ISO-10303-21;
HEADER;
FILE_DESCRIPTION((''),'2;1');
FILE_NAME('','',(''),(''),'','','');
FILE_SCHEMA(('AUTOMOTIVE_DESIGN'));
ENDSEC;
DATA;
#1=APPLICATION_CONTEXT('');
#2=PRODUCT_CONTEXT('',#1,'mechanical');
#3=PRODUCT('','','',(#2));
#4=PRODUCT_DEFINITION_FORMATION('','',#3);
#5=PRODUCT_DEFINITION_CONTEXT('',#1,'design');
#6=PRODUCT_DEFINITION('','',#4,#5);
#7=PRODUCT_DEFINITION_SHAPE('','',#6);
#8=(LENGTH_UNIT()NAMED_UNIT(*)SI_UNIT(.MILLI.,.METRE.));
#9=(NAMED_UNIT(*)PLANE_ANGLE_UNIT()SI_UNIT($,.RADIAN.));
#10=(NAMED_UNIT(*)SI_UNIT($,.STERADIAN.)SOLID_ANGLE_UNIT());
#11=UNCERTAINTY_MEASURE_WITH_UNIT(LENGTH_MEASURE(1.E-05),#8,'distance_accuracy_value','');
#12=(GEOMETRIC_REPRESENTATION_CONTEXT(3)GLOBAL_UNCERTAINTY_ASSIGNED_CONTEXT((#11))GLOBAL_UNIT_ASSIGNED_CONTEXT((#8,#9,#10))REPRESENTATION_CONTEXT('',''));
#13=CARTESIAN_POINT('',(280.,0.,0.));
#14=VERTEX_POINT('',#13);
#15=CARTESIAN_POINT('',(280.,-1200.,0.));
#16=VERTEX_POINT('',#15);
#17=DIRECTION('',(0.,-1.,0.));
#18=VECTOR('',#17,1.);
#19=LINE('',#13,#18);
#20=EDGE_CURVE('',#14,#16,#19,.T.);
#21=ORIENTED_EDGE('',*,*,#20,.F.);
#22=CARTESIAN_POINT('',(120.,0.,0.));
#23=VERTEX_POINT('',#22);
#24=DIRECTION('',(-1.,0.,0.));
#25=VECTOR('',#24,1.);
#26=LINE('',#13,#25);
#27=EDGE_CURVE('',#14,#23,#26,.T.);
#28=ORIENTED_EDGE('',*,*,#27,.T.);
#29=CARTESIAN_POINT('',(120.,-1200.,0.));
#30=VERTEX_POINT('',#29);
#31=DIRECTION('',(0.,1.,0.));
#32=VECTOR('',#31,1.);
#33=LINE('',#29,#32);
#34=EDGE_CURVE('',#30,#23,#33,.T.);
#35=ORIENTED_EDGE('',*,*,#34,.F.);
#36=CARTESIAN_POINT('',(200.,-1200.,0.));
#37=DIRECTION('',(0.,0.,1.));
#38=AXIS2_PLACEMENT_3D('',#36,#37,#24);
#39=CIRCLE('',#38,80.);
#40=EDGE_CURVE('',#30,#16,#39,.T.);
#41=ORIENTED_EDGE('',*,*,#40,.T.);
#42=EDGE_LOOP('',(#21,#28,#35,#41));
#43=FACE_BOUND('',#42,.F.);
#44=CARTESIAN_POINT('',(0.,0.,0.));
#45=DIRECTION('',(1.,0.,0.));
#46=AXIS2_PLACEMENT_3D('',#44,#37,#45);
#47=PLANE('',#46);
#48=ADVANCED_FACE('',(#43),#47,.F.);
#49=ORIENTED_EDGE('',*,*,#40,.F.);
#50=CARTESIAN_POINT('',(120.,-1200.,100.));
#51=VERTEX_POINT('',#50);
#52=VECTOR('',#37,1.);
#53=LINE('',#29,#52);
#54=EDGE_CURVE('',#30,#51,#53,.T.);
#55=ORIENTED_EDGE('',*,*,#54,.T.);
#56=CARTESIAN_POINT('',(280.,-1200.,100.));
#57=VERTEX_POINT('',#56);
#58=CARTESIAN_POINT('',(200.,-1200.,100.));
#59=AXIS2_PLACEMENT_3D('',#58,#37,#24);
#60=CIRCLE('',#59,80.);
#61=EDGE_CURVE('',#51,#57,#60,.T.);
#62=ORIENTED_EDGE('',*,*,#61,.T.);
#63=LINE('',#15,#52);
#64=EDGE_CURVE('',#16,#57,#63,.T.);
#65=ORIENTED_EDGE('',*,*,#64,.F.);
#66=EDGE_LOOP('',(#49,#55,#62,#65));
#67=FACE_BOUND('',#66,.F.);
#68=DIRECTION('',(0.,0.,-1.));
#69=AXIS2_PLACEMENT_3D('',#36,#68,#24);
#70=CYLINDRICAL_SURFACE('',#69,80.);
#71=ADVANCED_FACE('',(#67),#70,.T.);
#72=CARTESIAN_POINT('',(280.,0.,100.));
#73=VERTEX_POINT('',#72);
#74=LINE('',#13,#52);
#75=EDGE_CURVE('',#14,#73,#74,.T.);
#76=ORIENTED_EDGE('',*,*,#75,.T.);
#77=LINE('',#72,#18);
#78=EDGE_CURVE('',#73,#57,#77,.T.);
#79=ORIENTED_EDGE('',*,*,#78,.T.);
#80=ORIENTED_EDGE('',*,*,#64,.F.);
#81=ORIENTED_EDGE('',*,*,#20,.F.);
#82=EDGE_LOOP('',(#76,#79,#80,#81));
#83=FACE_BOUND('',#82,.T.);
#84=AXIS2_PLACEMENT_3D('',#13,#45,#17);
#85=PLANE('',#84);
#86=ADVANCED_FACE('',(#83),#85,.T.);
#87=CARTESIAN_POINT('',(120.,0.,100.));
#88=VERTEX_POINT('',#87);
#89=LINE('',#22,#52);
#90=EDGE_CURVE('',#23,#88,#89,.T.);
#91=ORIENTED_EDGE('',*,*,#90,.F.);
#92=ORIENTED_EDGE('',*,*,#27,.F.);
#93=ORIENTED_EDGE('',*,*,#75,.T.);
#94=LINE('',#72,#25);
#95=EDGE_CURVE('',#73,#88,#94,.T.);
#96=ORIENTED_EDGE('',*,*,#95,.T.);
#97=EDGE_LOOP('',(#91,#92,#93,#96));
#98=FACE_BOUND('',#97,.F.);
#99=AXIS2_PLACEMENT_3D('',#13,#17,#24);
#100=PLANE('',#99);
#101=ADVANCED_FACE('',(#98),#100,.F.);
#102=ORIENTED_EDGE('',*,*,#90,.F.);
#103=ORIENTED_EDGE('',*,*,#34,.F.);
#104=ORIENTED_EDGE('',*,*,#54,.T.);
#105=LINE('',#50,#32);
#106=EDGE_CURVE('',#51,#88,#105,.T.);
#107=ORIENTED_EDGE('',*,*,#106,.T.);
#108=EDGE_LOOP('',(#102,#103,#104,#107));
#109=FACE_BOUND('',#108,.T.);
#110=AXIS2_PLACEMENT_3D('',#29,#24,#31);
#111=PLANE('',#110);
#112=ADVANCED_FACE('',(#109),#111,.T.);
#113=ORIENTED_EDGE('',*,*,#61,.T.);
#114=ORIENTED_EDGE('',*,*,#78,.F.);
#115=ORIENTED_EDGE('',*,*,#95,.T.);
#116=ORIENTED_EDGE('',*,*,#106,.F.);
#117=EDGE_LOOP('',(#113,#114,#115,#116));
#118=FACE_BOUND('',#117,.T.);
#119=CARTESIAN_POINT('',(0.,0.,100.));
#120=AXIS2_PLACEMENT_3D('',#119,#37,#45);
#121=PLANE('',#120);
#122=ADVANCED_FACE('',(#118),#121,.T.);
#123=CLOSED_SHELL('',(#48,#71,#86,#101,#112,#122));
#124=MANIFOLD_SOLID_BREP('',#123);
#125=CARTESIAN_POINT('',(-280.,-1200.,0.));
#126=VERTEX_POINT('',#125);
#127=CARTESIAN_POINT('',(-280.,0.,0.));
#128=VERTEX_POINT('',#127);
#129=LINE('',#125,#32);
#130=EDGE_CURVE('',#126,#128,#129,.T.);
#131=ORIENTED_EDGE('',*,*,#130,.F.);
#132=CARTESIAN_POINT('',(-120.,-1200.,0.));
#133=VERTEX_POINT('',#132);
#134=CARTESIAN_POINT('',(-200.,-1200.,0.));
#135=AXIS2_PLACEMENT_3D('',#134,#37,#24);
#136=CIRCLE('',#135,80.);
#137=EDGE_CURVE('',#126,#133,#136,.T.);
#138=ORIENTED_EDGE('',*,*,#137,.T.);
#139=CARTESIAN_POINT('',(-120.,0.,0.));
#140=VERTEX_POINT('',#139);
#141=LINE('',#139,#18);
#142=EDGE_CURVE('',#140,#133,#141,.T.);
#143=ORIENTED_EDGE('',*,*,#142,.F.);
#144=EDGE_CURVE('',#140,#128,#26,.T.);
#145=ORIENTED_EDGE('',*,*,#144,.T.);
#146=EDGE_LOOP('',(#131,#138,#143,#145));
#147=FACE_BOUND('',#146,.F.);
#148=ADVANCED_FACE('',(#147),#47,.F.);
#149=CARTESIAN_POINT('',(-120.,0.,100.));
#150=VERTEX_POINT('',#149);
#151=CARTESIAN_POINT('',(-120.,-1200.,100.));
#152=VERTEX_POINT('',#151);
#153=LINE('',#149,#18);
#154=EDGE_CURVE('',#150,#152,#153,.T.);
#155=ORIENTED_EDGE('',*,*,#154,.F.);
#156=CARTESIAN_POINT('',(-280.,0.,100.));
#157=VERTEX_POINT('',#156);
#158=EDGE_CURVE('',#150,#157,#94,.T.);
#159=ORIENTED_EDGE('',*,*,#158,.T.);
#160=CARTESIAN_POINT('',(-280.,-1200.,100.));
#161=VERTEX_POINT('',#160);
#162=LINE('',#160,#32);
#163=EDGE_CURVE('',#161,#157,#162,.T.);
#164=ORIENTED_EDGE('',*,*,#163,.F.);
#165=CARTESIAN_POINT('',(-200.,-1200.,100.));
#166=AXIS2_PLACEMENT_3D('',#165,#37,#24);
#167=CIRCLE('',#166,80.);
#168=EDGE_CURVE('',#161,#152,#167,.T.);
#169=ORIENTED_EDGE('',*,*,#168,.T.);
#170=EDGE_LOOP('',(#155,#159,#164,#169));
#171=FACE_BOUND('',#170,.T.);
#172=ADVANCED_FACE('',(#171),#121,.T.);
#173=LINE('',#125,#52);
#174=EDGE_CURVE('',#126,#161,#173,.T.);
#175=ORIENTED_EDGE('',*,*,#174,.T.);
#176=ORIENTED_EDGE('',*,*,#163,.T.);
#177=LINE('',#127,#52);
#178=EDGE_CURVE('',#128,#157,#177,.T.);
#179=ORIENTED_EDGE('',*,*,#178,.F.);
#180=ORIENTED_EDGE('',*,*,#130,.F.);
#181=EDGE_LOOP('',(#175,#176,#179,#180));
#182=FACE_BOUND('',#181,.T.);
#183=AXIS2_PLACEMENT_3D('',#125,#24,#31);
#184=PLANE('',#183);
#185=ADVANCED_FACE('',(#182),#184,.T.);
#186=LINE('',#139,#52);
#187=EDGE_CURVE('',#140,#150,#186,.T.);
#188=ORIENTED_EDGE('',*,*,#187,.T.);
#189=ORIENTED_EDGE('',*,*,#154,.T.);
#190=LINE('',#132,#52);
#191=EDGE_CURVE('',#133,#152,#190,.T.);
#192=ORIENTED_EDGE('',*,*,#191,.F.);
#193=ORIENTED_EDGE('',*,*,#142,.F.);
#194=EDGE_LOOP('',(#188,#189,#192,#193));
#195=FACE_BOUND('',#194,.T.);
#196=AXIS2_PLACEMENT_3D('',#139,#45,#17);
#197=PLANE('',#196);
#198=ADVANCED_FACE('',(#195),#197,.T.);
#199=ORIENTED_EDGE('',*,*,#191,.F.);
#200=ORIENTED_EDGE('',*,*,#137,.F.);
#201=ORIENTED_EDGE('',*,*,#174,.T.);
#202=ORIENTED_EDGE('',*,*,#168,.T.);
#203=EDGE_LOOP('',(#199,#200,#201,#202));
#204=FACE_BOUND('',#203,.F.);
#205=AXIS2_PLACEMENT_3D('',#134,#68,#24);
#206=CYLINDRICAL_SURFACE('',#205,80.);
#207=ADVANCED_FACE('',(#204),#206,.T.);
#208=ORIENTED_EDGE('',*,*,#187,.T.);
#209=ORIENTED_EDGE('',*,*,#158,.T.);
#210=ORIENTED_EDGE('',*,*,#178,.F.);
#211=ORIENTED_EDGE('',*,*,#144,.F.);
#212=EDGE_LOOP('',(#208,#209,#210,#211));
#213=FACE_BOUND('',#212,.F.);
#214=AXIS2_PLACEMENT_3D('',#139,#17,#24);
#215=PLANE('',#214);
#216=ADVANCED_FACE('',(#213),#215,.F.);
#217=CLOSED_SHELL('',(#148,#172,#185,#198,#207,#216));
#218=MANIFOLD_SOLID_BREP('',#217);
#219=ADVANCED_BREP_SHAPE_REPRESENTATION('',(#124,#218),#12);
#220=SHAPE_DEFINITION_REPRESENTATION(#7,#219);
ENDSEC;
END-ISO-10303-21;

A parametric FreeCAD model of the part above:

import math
import FreeCAD as App
import Part
import Sketcher
from FreeCAD import Vector
Q = App.Units.Quantity

doc = App.newDocument("Part")
params = doc.addObject("Spreadsheet::Sheet", "Params")
for row, (alias, value) in enumerate([
    ("sketch1_radius", "80 mm"),
    ("sketch1_height", "1200 mm"),
    ("pad1_length", "100 mm"),
], start=1):
    params.set(f"A{row}", alias)
    params.set(f"B{row}", "=" + value)
    params.setAlias(f"B{row}", alias)

body = doc.addObject("PartDesign::Body", "Body")
body.AllowCompound = True

sketch1 = body.newObject("Sketcher::SketchObject", "Sketch")
sketch1.AttachmentSupport = (doc.getObject("XY_Plane"), [""])
sketch1.MapMode = "FlatFace"
sketch1.addGeometry([
    Part.LineSegment(Vector(-120, -1200, 0), Vector(-120, 0, 0)),
    Part.LineSegment(Vector(-120, 0, 0), Vector(-280, 0, 0)),
    Part.LineSegment(Vector(-280, 0, 0), Vector(-280, -1200, 0)),
    Part.ArcOfCircle(Part.Circle(Vector(-200, -1200, 0), Vector(0, 0, 1), 80), math.radians(180), math.radians(360)),
    Part.LineSegment(Vector(280, -1200, 0), Vector(280, 0, 0)),
    Part.LineSegment(Vector(280, 0, 0), Vector(120, 0, 0)),
    Part.LineSegment(Vector(120, 0, 0), Vector(120, -1200, 0)),
    Part.ArcOfCircle(Part.Circle(Vector(200, -1200, 0), Vector(0, 0, 1), 80), math.radians(180), math.radians(360)),
], False)
sketch1.addConstraint([
    Sketcher.Constraint("Coincident", 0, 2, 1, 1),
    Sketcher.Constraint("Coincident", 1, 2, 2, 1),
    Sketcher.Constraint("Tangent", 2, 2, 3, 1),
    Sketcher.Constraint("Tangent", 3, 2, 0, 1),
    Sketcher.Constraint("Coincident", 4, 2, 5, 1),
    Sketcher.Constraint("Coincident", 5, 2, 6, 1),
    Sketcher.Constraint("Tangent", 6, 2, 7, 1),
    Sketcher.Constraint("Tangent", 7, 2, 4, 1),
    Sketcher.Constraint("Vertical", 0),
    Sketcher.Constraint("Horizontal", 1),
    Sketcher.Constraint("Vertical", 2),
    Sketcher.Constraint("Vertical", 4),
    Sketcher.Constraint("Horizontal", 5),
    Sketcher.Constraint("Vertical", 6),
    Sketcher.Constraint("Equal", 3, 7),
    Sketcher.Constraint("Symmetric", 1, 2, 4, 2, -1, 1),
    Sketcher.Constraint("PointOnObject", 0, 2, -1),
    Sketcher.Constraint("Horizontal", 3, 3, 7, 3),
    Sketcher.Constraint("Radius", 3, Q("80 mm")),
    Sketcher.Constraint("DistanceY", 0, 1, 0, 2, Q("1200 mm")),
    Sketcher.Constraint("DistanceX", 1, 2, 4, 2, Q("560 mm")),
])
sketch1.setExpression("Constraints[18]", "Params.sketch1_radius")
sketch1.setExpression("Constraints[19]", "Params.sketch1_height")
pad1 = body.newObject("PartDesign::Pad", "Pad")
pad1.Profile = sketch1
pad1.setExpression("Length", "Params.pad1_length")

doc.recompute()
